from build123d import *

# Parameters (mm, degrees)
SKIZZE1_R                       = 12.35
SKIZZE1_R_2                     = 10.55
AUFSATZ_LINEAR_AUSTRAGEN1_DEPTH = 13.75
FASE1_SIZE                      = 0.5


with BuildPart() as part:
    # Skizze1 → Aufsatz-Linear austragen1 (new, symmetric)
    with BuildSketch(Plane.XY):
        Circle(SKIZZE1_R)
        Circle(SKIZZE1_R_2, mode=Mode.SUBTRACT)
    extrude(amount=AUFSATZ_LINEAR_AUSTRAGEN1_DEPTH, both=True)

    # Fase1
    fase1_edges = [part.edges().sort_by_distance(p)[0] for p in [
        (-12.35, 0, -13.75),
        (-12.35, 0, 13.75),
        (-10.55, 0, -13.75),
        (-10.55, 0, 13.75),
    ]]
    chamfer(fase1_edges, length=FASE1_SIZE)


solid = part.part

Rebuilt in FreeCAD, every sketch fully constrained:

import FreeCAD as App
import Part
import Sketcher
Q = App.Units.Quantity


def edges_at(feature, points):
    """Names of the edges that pass closest to the given points."""
    edges = feature.Shape.Edges
    near = lambda p: min(range(len(edges)), key=lambda i: edges[i].distToShape(Part.Vertex(*p))[0])
    return sorted({f"Edge{near(p) + 1}" for p in points})

doc = App.newDocument("Part")
body = doc.addObject("PartDesign::Body", "Body")

# Sketch on XY plane
sketch1 = body.newObject("Sketcher::SketchObject", "Sketch")
sketch1.AttachmentSupport = (doc.getObject("XY_Plane"), [""])
sketch1.MapMode = "FlatFace"
sketch1.addGeometry(Part.Circle(App.Vector(0, 0, 0), App.Vector(0, 0, 1), 12.35), False)
sketch1.addGeometry(Part.Circle(App.Vector(0, 0, 0), App.Vector(0, 0, 1), 10.55), False)
sketch1.addConstraint(Sketcher.Constraint("Coincident", 0, 3, -1, 1))
sketch1.addConstraint(Sketcher.Constraint("Coincident", 1, 3, -1, 1))
sketch1.addConstraint(Sketcher.Constraint("Diameter", 0, Q("24.7 mm")))
sketch1.addConstraint(Sketcher.Constraint("Diameter", 1, Q("21.1 mm")))
pad1 = body.newObject("PartDesign::Pad", "Pad")
pad1.Profile = sketch1
pad1.Length = 27.5
pad1.Midplane = True
doc.recompute()

chamfer = body.newObject("PartDesign::Chamfer", "Chamfer")
chamfer.Base = (pad1, edges_at(pad1, [
    (-12.35, 0, -13.75),
    (-12.35, 0, 13.75),
    (-10.55, 0, -13.75),
    (-10.55, 0, 13.75),
]))
chamfer.Size = 0.5

doc.recompute()
